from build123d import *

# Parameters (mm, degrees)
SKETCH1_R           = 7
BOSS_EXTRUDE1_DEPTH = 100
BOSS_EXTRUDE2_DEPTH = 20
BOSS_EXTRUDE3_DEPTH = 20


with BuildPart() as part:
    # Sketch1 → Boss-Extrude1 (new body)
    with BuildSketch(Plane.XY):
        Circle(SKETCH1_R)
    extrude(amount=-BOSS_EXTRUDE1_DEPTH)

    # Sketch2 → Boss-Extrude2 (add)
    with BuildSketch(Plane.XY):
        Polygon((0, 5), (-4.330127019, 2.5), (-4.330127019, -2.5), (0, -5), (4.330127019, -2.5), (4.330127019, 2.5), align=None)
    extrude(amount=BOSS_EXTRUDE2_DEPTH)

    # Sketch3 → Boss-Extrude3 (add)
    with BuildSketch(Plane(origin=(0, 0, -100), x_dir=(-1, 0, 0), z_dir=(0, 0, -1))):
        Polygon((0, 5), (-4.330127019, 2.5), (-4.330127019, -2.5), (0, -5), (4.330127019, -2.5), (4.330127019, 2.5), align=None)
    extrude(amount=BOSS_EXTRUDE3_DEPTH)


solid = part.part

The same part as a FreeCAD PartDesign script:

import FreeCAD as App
import Part
import Sketcher
from FreeCAD import Vector
Q = App.Units.Quantity

doc = App.newDocument("Part")
body = doc.addObject("PartDesign::Body", "Body")

# Sketch on XY plane
sketch1 = doc.addObject("Sketcher::SketchObject", "Sketch")
body.addObject(sketch1)
sketch1.AttachmentSupport = (doc.XY_Plane, [""])
sketch1.MapMode = "FlatFace"
sketch1.addGeometry(Part.Circle(Vector(0, 0, 0), Vector(0, 0, 1), 7), False)
sketch1.addConstraint(Sketcher.Constraint("Coincident", 0, 3, -1, 1))
sketch1.addConstraint(Sketcher.Constraint("Diameter", 0, Q("14 mm")))
pad1 = doc.addObject("PartDesign::Pad", "Pad")
body.addObject(pad1)
pad1.Profile = sketch1
pad1.Length = 100
pad1.Reversed = True

# Sketch on XY plane
sketch2 = doc.addObject("Sketcher::SketchObject", "Sketch001")
body.addObject(sketch2)
sketch2.AttachmentSupport = (doc.XY_Plane, [""])
sketch2.MapMode = "FlatFace"
sketch2.addGeometry(Part.LineSegment(Vector(0, 5, 0), Vector(-4, 2, 0)), False)
sketch2.addGeometry(Part.LineSegment(Vector(-4, 2, 0), Vector(-4, -2, 0)), False)
sketch2.addGeometry(Part.LineSegment(Vector(-4, -2, 0), Vector(0, -5, 0)), False)
sketch2.addGeometry(Part.LineSegment(Vector(0, -5, 0), Vector(4, -2, 0)), False)
sketch2.addGeometry(Part.LineSegment(Vector(4, -2, 0), Vector(4, 2, 0)), False)
sketch2.addGeometry(Part.LineSegment(Vector(4, 2, 0), Vector(0, 5, 0)), False)
sketch2.addConstraint(Sketcher.Constraint("Coincident", 0, 2, 1, 1))
sketch2.addConstraint(Sketcher.Constraint("Coincident", 1, 2, 2, 1))
sketch2.addConstraint(Sketcher.Constraint("Coincident", 2, 2, 3, 1))
sketch2.addConstraint(Sketcher.Constraint("Coincident", 3, 2, 4, 1))
sketch2.addConstraint(Sketcher.Constraint("Coincident", 4, 2, 5, 1))
sketch2.addConstraint(Sketcher.Constraint("Coincident", 5, 2, 0, 1))
sketch2.addConstraint(Sketcher.Constraint("Vertical", 1))
sketch2.addConstraint(Sketcher.Constraint("Vertical", 4))
sketch2.addConstraint(Sketcher.Constraint("Symmetric", 0, 2, 3, 2, -1, 1))
sketch2.addConstraint(Sketcher.Constraint("Symmetric", 2, 2, 5, 2, -1, 1))
sketch2.addConstraint(Sketcher.Constraint("PointOnObject", 2, 2, -2))
sketch2.addConstraint(Sketcher.Constraint("Parallel", 2, 5))
sketch2.addConstraint(Sketcher.Constraint("Horizontal", 1, 2, 3, 2))
sketch2.addConstraint(Sketcher.Constraint("DistanceY", 1, 2, 1, 1, Q("5 mm")))
sketch2.addConstraint(Sketcher.Constraint("Angle", 0, Q("-150 deg")))
sketch2.addConstraint(Sketcher.Constraint("Distance", 0, Q("5 mm")))
pad2 = doc.addObject("PartDesign::Pad", "Pad001")
body.addObject(pad2)
pad2.Profile = sketch2
pad2.Length = 20

# Sketch on XY plane
sketch3 = doc.addObject("Sketcher::SketchObject", "Sketch002")
body.addObject(sketch3)
sketch3.AttachmentSupport = (doc.XY_Plane, [""])
sketch3.MapMode = "FlatFace"
sketch3.AttachmentOffset = App.Placement(Vector(0, 0, -100), App.Rotation())
sketch3.addGeometry(Part.LineSegment(Vector(0, 5, 0), Vector(4, 2, 0)), False)
sketch3.addGeometry(Part.LineSegment(Vector(4, 2, 0), Vector(4, -2, 0)), False)
sketch3.addGeometry(Part.LineSegment(Vector(4, -2, 0), Vector(0, -5, 0)), False)
sketch3.addGeometry(Part.LineSegment(Vector(0, -5, 0), Vector(-4, -2, 0)), False)
sketch3.addGeometry(Part.LineSegment(Vector(-4, -2, 0), Vector(-4, 2, 0)), False)
sketch3.addGeometry(Part.LineSegment(Vector(-4, 2, 0), Vector(0, 5, 0)), False)
sketch3.addConstraint(Sketcher.Constraint("Coincident", 0, 2, 1, 1))
sketch3.addConstraint(Sketcher.Constraint("Coincident", 1, 2, 2, 1))
sketch3.addConstraint(Sketcher.Constraint("Coincident", 2, 2, 3, 1))
sketch3.addConstraint(Sketcher.Constraint("Coincident", 3, 2, 4, 1))
sketch3.addConstraint(Sketcher.Constraint("Coincident", 4, 2, 5, 1))
sketch3.addConstraint(Sketcher.Constraint("Coincident", 5, 2, 0, 1))
sketch3.addConstraint(Sketcher.Constraint("Vertical", 1))
sketch3.addConstraint(Sketcher.Constraint("Vertical", 4))
sketch3.addConstraint(Sketcher.Constraint("Symmetric", 0, 2, 3, 2, -1, 1))
sketch3.addConstraint(Sketcher.Constraint("Symmetric", 2, 2, 5, 2, -1, 1))
sketch3.addConstraint(Sketcher.Constraint("PointOnObject", 2, 2, -2))
sketch3.addConstraint(Sketcher.Constraint("Parallel", 2, 5))
sketch3.addConstraint(Sketcher.Constraint("Horizontal", 1, 2, 3, 2))
sketch3.addConstraint(Sketcher.Constraint("DistanceY", 1, 2, 1, 1, Q("5 mm")))
sketch3.addConstraint(Sketcher.Constraint("Angle", 0, Q("-30 deg")))
sketch3.addConstraint(Sketcher.Constraint("Distance", 0, Q("5 mm")))
pad3 = doc.addObject("PartDesign::Pad", "Pad002")
body.addObject(pad3)
pad3.Profile = sketch3
pad3.Length = 20
pad3.Reversed = True

doc.recompute()
